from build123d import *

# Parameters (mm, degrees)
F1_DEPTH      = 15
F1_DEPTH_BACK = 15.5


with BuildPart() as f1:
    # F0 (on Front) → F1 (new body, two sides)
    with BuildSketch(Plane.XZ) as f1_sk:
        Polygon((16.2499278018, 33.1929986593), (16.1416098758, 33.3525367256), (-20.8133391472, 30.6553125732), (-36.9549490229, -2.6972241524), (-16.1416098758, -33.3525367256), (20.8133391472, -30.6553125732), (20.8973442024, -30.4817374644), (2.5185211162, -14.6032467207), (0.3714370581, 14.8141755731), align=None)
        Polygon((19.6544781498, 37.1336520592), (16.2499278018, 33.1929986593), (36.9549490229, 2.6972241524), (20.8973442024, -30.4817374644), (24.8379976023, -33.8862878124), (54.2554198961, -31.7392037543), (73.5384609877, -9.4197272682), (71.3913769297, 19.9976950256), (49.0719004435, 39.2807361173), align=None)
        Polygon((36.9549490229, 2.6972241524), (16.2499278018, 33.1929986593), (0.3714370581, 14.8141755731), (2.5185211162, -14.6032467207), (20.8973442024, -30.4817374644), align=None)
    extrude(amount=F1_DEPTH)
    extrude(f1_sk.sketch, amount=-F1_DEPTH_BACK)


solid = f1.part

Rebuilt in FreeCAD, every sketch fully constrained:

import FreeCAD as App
import Part
import Sketcher

V = App.Vector
Q = App.Units.Quantity

doc = App.newDocument("Part")
body = doc.addObject("PartDesign::Body", "Body")

sketch1 = body.newObject("Sketcher::SketchObject", "Sketch")
sketch1.AttachmentSupport = (doc.getObject("XZ_Plane"), [""])
sketch1.MapMode = "FlatFace"
sketch1.addGeometry([
    Part.LineSegment(V(16.25, 33.19, 0), V(16.14, 33.35, 0)),
    Part.LineSegment(V(16.14, 33.35, 0), V(-20.81, 30.66, 0)),
    Part.LineSegment(V(-20.81, 30.66, 0), V(-36.95, -2.7, 0)),
    Part.LineSegment(V(-36.95, -2.7, 0), V(-16.14, -33.35, 0)),
    Part.LineSegment(V(-16.14, -33.35, 0), V(20.81, -30.66, 0)),
    Part.LineSegment(V(20.81, -30.66, 0), V(20.9, -30.48, 0)),
    Part.LineSegment(V(20.9, -30.48, 0), V(24.84, -33.89, 0)),
    Part.LineSegment(V(24.84, -33.89, 0), V(54.26, -31.74, 0)),
    Part.LineSegment(V(54.26, -31.74, 0), V(73.54, -9.42, 0)),
    Part.LineSegment(V(73.54, -9.42, 0), V(71.39, 20, 0)),
    Part.LineSegment(V(71.39, 20, 0), V(49.07, 39.28, 0)),
    Part.LineSegment(V(49.07, 39.28, 0), V(19.65, 37.13, 0)),
    Part.LineSegment(V(19.65, 37.13, 0), V(16.25, 33.19, 0)),
], False)
sketch1.addConstraint([
    Sketcher.Constraint("Coincident", 0, 2, 1, 1),
    Sketcher.Constraint("Coincident", 1, 2, 2, 1),
    Sketcher.Constraint("Coincident", 2, 2, 3, 1),
    Sketcher.Constraint("Coincident", 3, 2, 4, 1),
    Sketcher.Constraint("Coincident", 4, 2, 5, 1),
    Sketcher.Constraint("Coincident", 5, 2, 6, 1),
    Sketcher.Constraint("Coincident", 6, 2, 7, 1),
    Sketcher.Constraint("Coincident", 7, 2, 8, 1),
    Sketcher.Constraint("Coincident", 8, 2, 9, 1),
    Sketcher.Constraint("Coincident", 9, 2, 10, 1),
    Sketcher.Constraint("Coincident", 10, 2, 11, 1),
    Sketcher.Constraint("Coincident", 11, 2, 12, 1),
    Sketcher.Constraint("Coincident", 12, 2, 0, 1),
    Sketcher.Constraint("Symmetric", 0, 2, 3, 2, -1, 1),
    Sketcher.Constraint("Symmetric", 1, 2, 4, 2, -1, 1),
    Sketcher.Constraint("Parallel", 0, 3),
    Sketcher.Constraint("Parallel", 2, 5),
    Sketcher.Constraint("Parallel", 4, 7),
    Sketcher.Constraint("Perpendicular", 6, 8),
    Sketcher.Constraint("Perpendicular", 7, 9),
    Sketcher.Constraint("Perpendicular", 8, 10),
    Sketcher.Constraint("Perpendicular", 9, 11),
    Sketcher.Constraint("Perpendicular", 10, 12),
    Sketcher.Constraint("Equal", 1, 2),
    Sketcher.Constraint("Equal", 2, 3),
    Sketcher.Constraint("Equal", 0, 5),
    Sketcher.Constraint("Equal", 7, 8),
    Sketcher.Constraint("Equal", 8, 9),
    Sketcher.Constraint("Equal", 9, 10),
    Sketcher.Constraint("Equal", 10, 11),
    Sketcher.Constraint("Equal", 6, 12),
    Sketcher.Constraint("DistanceY", -1, 1, 12, 2, Q("33.192999 mm")),
    Sketcher.Constraint("DistanceX", -1, 1, 10, 2, Q("49.0719 mm")),
    Sketcher.Constraint("DistanceY", 3, 2, 5, 2, Q("2.870799 mm")),
    Sketcher.Constraint("DistanceY", 7, 2, 9, 2, Q("51.736899 mm")),
    Sketcher.Constraint("DistanceY", 0, 2, 10, 2, Q("5.928199 mm")),
    Sketcher.Constraint("Distance", 1, Q("37.053249 mm")),
])
pad1 = body.newObject("PartDesign::Pad", "Pad")
pad1.Profile = sketch1
pad1.Type = "TwoLengths"
pad1.Length = 15
pad1.Length2 = 15.5

doc.recompute()
